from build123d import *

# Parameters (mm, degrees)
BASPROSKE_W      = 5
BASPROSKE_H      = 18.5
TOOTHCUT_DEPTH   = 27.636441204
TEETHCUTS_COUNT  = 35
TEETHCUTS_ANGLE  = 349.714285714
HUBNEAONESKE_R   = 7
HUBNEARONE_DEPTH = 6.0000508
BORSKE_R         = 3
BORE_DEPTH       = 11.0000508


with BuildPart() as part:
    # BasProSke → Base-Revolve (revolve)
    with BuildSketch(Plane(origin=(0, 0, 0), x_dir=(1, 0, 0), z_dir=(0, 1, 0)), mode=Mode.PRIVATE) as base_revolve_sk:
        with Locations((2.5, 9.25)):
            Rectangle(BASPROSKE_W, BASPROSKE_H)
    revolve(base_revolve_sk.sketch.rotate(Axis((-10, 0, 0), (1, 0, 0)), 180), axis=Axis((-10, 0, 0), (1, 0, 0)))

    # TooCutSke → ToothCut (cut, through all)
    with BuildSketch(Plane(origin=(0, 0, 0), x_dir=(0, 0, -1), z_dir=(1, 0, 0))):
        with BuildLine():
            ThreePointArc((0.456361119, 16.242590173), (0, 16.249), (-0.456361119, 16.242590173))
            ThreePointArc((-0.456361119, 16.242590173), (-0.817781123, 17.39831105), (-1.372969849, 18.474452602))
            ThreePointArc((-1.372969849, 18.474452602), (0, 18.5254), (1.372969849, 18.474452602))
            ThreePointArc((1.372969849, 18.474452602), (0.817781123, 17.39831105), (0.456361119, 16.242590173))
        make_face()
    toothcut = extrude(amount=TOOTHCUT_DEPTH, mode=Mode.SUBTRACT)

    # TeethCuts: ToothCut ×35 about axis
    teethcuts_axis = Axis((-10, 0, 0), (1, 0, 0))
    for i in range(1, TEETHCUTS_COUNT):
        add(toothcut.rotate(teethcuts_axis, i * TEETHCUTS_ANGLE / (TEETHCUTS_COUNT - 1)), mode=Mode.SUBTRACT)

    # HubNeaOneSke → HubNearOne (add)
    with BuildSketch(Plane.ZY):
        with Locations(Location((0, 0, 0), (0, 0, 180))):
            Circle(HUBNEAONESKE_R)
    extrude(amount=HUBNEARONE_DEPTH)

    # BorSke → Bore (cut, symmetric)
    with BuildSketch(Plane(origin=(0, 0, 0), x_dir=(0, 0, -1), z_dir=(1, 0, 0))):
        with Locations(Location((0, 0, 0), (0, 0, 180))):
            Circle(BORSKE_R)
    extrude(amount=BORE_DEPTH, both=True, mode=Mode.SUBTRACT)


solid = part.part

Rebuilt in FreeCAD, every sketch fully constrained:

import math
import FreeCAD as App
import Part
import Sketcher

V = App.Vector
Q = App.Units.Quantity


def add_polygon(sketch, points):
    """Adds a closed chain of lines whose ends are joined by coincident constraints."""
    first, n = sketch.GeometryCount, len(points)
    for a, b in zip(points, points[1:] + points[:1]):
        sketch.addGeometry(Part.LineSegment(App.Vector(*a, 0), App.Vector(*b, 0)), False)
    for i in range(n):
        sketch.addConstraint(Sketcher.Constraint("Coincident", first + i, 2, first + (i + 1) % n, 1))

doc = App.newDocument("Part")
body = doc.addObject("PartDesign::Body", "Body")

# Sketch on XZ plane
sketch1 = body.newObject("Sketcher::SketchObject", "Sketch")
sketch1.AttachmentSupport = (doc.getObject("XZ_Plane"), [""])
sketch1.MapMode = "FlatFace"
add_polygon(sketch1, [(0, -18), (0, 0), (5, 0), (5, -18)])  # lines 0-3
sketch1.addConstraint([
    Sketcher.Constraint("Vertical", 0),
    Sketcher.Constraint("Horizontal", 1),
    Sketcher.Constraint("Vertical", 2),
    Sketcher.Constraint("Horizontal", 3),
    Sketcher.Constraint("Coincident", 0, 2, -1, 1),
    Sketcher.Constraint("DistanceX", 1, 1, 1, 2, Q("5 mm")),
    Sketcher.Constraint("DistanceY", 0, 1, 0, 2, Q("18.5 mm")),
])
revolution = body.newObject("PartDesign::Revolution", "Revolution")
revolution.Profile = sketch1
revolution.ReferenceAxis = (sketch1, ["H_Axis"])
revolution.Angle = 360

# Sketch on YZ plane
sketch2 = body.newObject("Sketcher::SketchObject", "Sketch001")
sketch2.AttachmentSupport = (doc.getObject("YZ_Plane"), [""])
sketch2.MapMode = "FlatFace"
sketch2.addGeometry([
    Part.ArcOfCircle(Part.Circle(V(0, 0, 0), V(0, 0, 1), 16.2), math.radians(-1.61), math.radians(1.61)),
    Part.ArcOfCircle(Part.Circle(V(14.7, -7.3, 0), V(0, 0, 1), 7), math.radians(57.75), math.radians(77.6)),
    Part.ArcOfCircle(Part.Circle(V(0, 0, 0), V(0, 0, 1), 18.5), math.radians(-4.25), math.radians(4.25)),
    Part.ArcOfCircle(Part.Circle(V(14.7, 7.3, 0), V(0, 0, 1), 7), math.radians(-77.6), math.radians(-57.75)),
], False)
sketch2.addConstraint([
    Sketcher.Constraint("Coincident", 0, 1, 1, 2),
    Sketcher.Constraint("Coincident", 1, 1, 2, 1),
    Sketcher.Constraint("Coincident", 2, 2, 3, 2),
    Sketcher.Constraint("Coincident", 3, 1, 0, 2),
    Sketcher.Constraint("Coincident", 0, 3, -1, 1),
    Sketcher.Constraint("Coincident", 2, 3, -1, 1),
    Sketcher.Constraint("Equal", 1, 3),
    Sketcher.Constraint("Symmetric", 1, 3, 3, 3, -1),
    Sketcher.Constraint("Radius", 1, Q("7 mm")),
    Sketcher.Constraint("Radius", 0, Q("16.249 mm")),
    Sketcher.Constraint("Radius", 2, Q("18.5254 mm")),
    Sketcher.Constraint("DistanceY", 1, 3, 1, 1, Q("5.92 mm")),
    Sketcher.Constraint("DistanceX", -1, 1, 1, 3, Q("14.739001 mm")),
])
pocket1 = body.newObject("PartDesign::Pocket", "Pocket")
pocket1.Profile = sketch2
pocket1.Type = "ThroughAll"
pocket1.Reversed = True
doc.recompute()

polarpattern = body.newObject("PartDesign::PolarPattern", "PolarPattern")
polarpattern.Originals = [pocket1]
polarpattern.Axis = (doc.getObject("X_Axis"), [""])
polarpattern.Angle = 360
polarpattern.Occurrences = 35
body.Tip = polarpattern

# Sketch on YZ plane
sketch3 = body.newObject("Sketcher::SketchObject", "Sketch002")
sketch3.AttachmentSupport = (doc.getObject("YZ_Plane"), [""])
sketch3.MapMode = "FlatFace"
sketch3.addGeometry(Part.Circle(V(0, 0, 0), V(0, 0, 1), 7), False)
sketch3.addConstraint([
    Sketcher.Constraint("Coincident", 0, 3, -1, 1),
    Sketcher.Constraint("Diameter", 0, Q("14 mm")),
])
pad1 = body.newObject("PartDesign::Pad", "Pad")
pad1.Profile = sketch3
pad1.Length = 6.000051
pad1.Reversed = True

# Sketch on YZ plane
sketch4 = body.newObject("Sketcher::SketchObject", "Sketch003")
sketch4.AttachmentSupport = (doc.getObject("YZ_Plane"), [""])
sketch4.MapMode = "FlatFace"
sketch4.addGeometry(Part.Circle(V(0, 0, 0), V(0, 0, 1), 3), False)
sketch4.addConstraint([
    Sketcher.Constraint("Coincident", 0, 3, -1, 1),
    Sketcher.Constraint("Diameter", 0, Q("6 mm")),
])
pocket2 = body.newObject("PartDesign::Pocket", "Pocket001")
pocket2.Profile = sketch4
pocket2.Length = 22.000102
pocket2.Midplane = True

doc.recompute()
